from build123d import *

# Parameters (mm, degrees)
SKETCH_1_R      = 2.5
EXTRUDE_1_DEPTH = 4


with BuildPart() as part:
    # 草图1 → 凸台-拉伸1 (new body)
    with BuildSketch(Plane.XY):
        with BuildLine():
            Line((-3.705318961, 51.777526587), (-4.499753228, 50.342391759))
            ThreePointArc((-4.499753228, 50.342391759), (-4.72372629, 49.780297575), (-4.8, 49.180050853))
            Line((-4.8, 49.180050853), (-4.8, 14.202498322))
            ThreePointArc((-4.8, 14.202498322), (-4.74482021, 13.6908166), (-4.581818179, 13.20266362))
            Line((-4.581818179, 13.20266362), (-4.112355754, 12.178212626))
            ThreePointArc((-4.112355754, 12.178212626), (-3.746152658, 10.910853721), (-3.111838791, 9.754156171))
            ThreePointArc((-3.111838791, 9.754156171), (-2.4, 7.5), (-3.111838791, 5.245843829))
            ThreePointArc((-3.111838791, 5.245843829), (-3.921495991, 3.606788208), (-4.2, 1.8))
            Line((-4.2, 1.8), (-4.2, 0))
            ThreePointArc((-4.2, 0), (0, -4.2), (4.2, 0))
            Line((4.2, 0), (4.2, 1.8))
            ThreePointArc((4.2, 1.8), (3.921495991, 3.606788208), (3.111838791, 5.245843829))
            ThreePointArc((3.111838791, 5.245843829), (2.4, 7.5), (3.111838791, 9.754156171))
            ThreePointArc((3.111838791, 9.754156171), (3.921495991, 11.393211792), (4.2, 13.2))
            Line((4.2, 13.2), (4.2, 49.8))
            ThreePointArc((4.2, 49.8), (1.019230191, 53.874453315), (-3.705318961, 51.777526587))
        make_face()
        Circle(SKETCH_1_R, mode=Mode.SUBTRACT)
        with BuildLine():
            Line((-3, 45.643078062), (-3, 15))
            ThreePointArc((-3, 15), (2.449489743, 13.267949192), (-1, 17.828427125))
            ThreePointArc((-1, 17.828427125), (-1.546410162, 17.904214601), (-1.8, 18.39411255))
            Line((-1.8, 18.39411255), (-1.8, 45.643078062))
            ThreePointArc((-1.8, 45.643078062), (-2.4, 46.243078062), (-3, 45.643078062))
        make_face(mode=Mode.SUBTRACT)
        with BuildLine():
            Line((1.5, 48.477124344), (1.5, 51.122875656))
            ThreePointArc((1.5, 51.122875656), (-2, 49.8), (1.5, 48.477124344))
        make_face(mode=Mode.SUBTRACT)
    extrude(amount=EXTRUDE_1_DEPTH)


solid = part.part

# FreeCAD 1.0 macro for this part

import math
import FreeCAD as App
import Part
import Sketcher
from FreeCAD import Vector

doc = App.newDocument("Part")
body = doc.addObject("PartDesign::Body", "Body")

# Sketch on XY plane
sketch1 = body.newObject("Sketcher::SketchObject", "Sketch")
sketch1.AttachmentSupport = (doc.getObject("XY_Plane"), [""])
sketch1.MapMode = "FlatFace"
sketch1.addGeometry(Part.LineSegment(Vector(-3.7, 51.8, 0), Vector(-4.5, 50.3, 0)), False)
sketch1.addGeometry(Part.ArcOfCircle(Part.Circle(Vector(-2.4, 49.2, 0), Vector(0, 0, 1), 2.4), math.radians(151), math.radians(180)), False)
sketch1.addGeometry(Part.LineSegment(Vector(-4.8, 49.2, 0), Vector(-4.8, 14.2, 0)), False)
sketch1.addGeometry(Part.ArcOfCircle(Part.Circle(Vector(-2.4, 14.2, 0), Vector(0, 0, 1), 2.4), math.radians(180), math.radians(205)), False)
sketch1.addGeometry(Part.LineSegment(Vector(-4.6, 13.2, 0), Vector(-4.1, 12.2, 0)), False)
sketch1.addGeometry(Part.ArcOfCircle(Part.Circle(Vector(1.8, 13.2, 0), Vector(0, 0, 1), 6), math.radians(-170), math.radians(-145)), False)
sketch1.addGeometry(Part.ArcOfCircle(Part.Circle(Vector(-6.3, 7.5, 0), Vector(0, 0, 1), 3.9), math.radians(-35), math.radians(35)), False)
sketch1.addGeometry(Part.ArcOfCircle(Part.Circle(Vector(1.8, 1.8, 0), Vector(0, 0, 1), 6), math.radians(145), math.radians(180)), False)
sketch1.addGeometry(Part.LineSegment(Vector(-4.2, 1.8, 0), Vector(-4.2, 0, 0)), False)
sketch1.addGeometry(Part.ArcOfCircle(Part.Circle(Vector(0, 0, 0), Vector(0, 0, 1), 4.2), math.radians(180), math.radians(360)), False)
sketch1.addGeometry(Part.LineSegment(Vector(4.2, 0, 0), Vector(4.2, 1.8, 0)), False)
sketch1.addGeometry(Part.ArcOfCircle(Part.Circle(Vector(-1.8, 1.8, 0), Vector(0, 0, 1), 6), math.radians(0), math.radians(35)), False)
sketch1.addGeometry(Part.ArcOfCircle(Part.Circle(Vector(6.3, 7.5, 0), Vector(0, 0, 1), 3.9), math.radians(145), math.radians(215)), False)
sketch1.addGeometry(Part.ArcOfCircle(Part.Circle(Vector(-1.8, 13.2, 0), Vector(0, 0, 1), 6), math.radians(-35), math.radians(0)), False)
sketch1.addGeometry(Part.LineSegment(Vector(4.2, 13.2, 0), Vector(4.2, 49.8, 0)), False)
sketch1.addGeometry(Part.ArcOfCircle(Part.Circle(Vector(0, 49.8, 0), Vector(0, 0, 1), 4.2), math.radians(0), math.radians(152)), False)
sketch1.addGeometry(Part.Circle(Vector(0, 0, 0), Vector(0, 0, 1), 2.5), False)
sketch1.addGeometry(Part.LineSegment(Vector(1.5, 51.1, 0), Vector(1.5, 48.5, 0)), False)
sketch1.addGeometry(Part.ArcOfCircle(Part.Circle(Vector(0, 49.8, 0), Vector(0, 0, 1), 2), math.radians(41), math.radians(319)), False)
sketch1.addGeometry(Part.LineSegment(Vector(-3, 15, 0), Vector(-3, 45.6, 0)), False)
sketch1.addGeometry(Part.ArcOfCircle(Part.Circle(Vector(-2.4, 45.6, 0), Vector(0, 0, 1), 0.6), math.radians(0), math.radians(180)), False)
sketch1.addGeometry(Part.LineSegment(Vector(-1.8, 45.6, 0), Vector(-1.8, 18.4, 0)), False)
sketch1.addGeometry(Part.ArcOfCircle(Part.Circle(Vector(-1.2, 18.4, 0), Vector(0, 0, 1), 0.6), math.radians(180), math.radians(289)), False)
sketch1.addGeometry(Part.ArcOfCircle(Part.Circle(Vector(0, 15, 0), Vector(0, 0, 1), 3), math.radians(180), math.radians(469)), False)
sketch1.addConstraint(Sketcher.Constraint("Tangent", 0, 2, 1, 1))
sketch1.addConstraint(Sketcher.Constraint("Tangent", 1, 2, 2, 1))
sketch1.addConstraint(Sketcher.Constraint("Tangent", 2, 2, 3, 1))
sketch1.addConstraint(Sketcher.Constraint("Tangent", 3, 2, 4, 1))
sketch1.addConstraint(Sketcher.Constraint("Coincident", 4, 2, 5, 1))
sketch1.addConstraint(Sketcher.Constraint("Tangent", 5, 2, 6, 2))
sketch1.addConstraint(Sketcher.Constraint("Tangent", 6, 1, 7, 1))
sketch1.addConstraint(Sketcher.Constraint("Tangent", 7, 2, 8, 1))
sketch1.addConstraint(Sketcher.Constraint("Tangent", 8, 2, 9, 1))
sketch1.addConstraint(Sketcher.Constraint("Tangent", 9, 2, 10, 1))
sketch1.addConstraint(Sketcher.Constraint("Tangent", 10, 2, 11, 1))
sketch1.addConstraint(Sketcher.Constraint("Tangent", 11, 2, 12, 2))
sketch1.addConstraint(Sketcher.Constraint("Tangent", 12, 1, 13, 1))
sketch1.addConstraint(Sketcher.Constraint("Tangent", 13, 2, 14, 1))
sketch1.addConstraint(Sketcher.Constraint("Tangent", 14, 2, 15, 1))
sketch1.addConstraint(Sketcher.Constraint("Coincident", 15, 2, 0, 1))
sketch1.addConstraint(Sketcher.Constraint("Coincident", 17, 1, 18, 1))
sketch1.addConstraint(Sketcher.Constraint("Coincident", 18, 2, 17, 2))
sketch1.addConstraint(Sketcher.Constraint("Tangent", 19, 2, 20, 2))
sketch1.addConstraint(Sketcher.Constraint("Tangent", 20, 1, 21, 1))
sketch1.addConstraint(Sketcher.Constraint("Tangent", 21, 2, 22, 1))
sketch1.addConstraint(Sketcher.Constraint("Tangent", 22, 2, 23, 2))
sketch1.addConstraint(Sketcher.Constraint("Tangent", 23, 1, 19, 1))
sketch1.addConstraint(Sketcher.Constraint("Vertical", 2))
sketch1.addConstraint(Sketcher.Constraint("Vertical", 8))
sketch1.addConstraint(Sketcher.Constraint("Vertical", 10))
sketch1.addConstraint(Sketcher.Constraint("Vertical", 14))
sketch1.addConstraint(Sketcher.Constraint("Vertical", 17))
sketch1.addConstraint(Sketcher.Constraint("Vertical", 19))
sketch1.addConstraint(Sketcher.Constraint("Vertical", 21))
sketch1.addConstraint(Sketcher.Constraint("Coincident", 9, 3, -1, 1))
sketch1.addConstraint(Sketcher.Constraint("Coincident", 16, 3, -1, 1))
sketch1.addConstraint(Sketcher.Constraint("Coincident", 18, 3, 15, 3))
sketch1.addConstraint(Sketcher.Constraint("Equal", 1, 3))
sketch1.addConstraint(Sketcher.Constraint("Equal", 5, 7))
sketch1.addConstraint(Sketcher.Constraint("Equal", 7, 11))
sketch1.addConstraint(Sketcher.Constraint("Equal", 6, 12))
sketch1.addConstraint(Sketcher.Constraint("Equal", 11, 13))
sketch1.addConstraint(Sketcher.Constraint("Equal", 9, 15))
sketch1.addConstraint(Sketcher.Constraint("Equal", 20, 22))
sketch1.addConstraint(Sketcher.Constraint("Symmetric", 6, 3, 12, 3, -2))
sketch1.addConstraint(Sketcher.Constraint("PointOnObject", 15, 3, -2))
sketch1.addConstraint(Sketcher.Constraint("PointOnObject", 23, 3, -2))
sketch1.addConstraint(Sketcher.Constraint("Horizontal", 5, 3, 13, 3))
sketch1.addConstraint(Sketcher.Constraint("Vertical", 3, 3, 20, 3))
sketch1.addConstraint(Sketcher.Constraint("Vertical", 13, 3, 20, 1))
sketch1.addConstraint(Sketcher.Constraint("Diameter", 16, 5.0))
sketch1.addConstraint(Sketcher.Constraint("Radius", 5, 6.0))
sketch1.addConstraint(Sketcher.Constraint("Radius", 18, 2.0))
sketch1.addConstraint(Sketcher.Constraint("Radius", 23, 3.0))
sketch1.addConstraint(Sketcher.Constraint("Radius", 1, 2.4))
sketch1.addConstraint(Sketcher.Constraint("Radius", 9, 4.2))
sketch1.addConstraint(Sketcher.Constraint("DistanceY", 8, 2, 8, 1, 1.8))
sketch1.addConstraint(Sketcher.Constraint("DistanceY", 14, 1, 14, 2, 36.6))
sketch1.addConstraint(Sketcher.Constraint("DistanceY", -1, 1, 23, 3, 15.0))
sketch1.addConstraint(Sketcher.Constraint("Radius", 6, 3.925))
sketch1.addConstraint(Sketcher.Constraint("DistanceY", -1, 1, 5, 3, 13.2))
sketch1.addConstraint(Sketcher.Constraint("DistanceX", -1, 1, 17, 1, 1.5))
sketch1.addConstraint(Sketcher.Constraint("DistanceY", 19, 1, 19, 2, 30.643078))
sketch1.addConstraint(Sketcher.Constraint("DistanceY", -1, 1, 3, 3, 14.202498))
sketch1.addConstraint(Sketcher.Constraint("DistanceY", 2, 2, 2, 1, 34.977553))
sketch1.addConstraint(Sketcher.Constraint("DistanceY", -1, 1, 0, 2, 50.342392))
sketch1.addConstraint(Sketcher.Constraint("DistanceX", 3, 2, -1, 1, 4.581818))
pad1 = body.newObject("PartDesign::Pad", "Pad")
pad1.Profile = sketch1
pad1.Length = 4

doc.recompute()
